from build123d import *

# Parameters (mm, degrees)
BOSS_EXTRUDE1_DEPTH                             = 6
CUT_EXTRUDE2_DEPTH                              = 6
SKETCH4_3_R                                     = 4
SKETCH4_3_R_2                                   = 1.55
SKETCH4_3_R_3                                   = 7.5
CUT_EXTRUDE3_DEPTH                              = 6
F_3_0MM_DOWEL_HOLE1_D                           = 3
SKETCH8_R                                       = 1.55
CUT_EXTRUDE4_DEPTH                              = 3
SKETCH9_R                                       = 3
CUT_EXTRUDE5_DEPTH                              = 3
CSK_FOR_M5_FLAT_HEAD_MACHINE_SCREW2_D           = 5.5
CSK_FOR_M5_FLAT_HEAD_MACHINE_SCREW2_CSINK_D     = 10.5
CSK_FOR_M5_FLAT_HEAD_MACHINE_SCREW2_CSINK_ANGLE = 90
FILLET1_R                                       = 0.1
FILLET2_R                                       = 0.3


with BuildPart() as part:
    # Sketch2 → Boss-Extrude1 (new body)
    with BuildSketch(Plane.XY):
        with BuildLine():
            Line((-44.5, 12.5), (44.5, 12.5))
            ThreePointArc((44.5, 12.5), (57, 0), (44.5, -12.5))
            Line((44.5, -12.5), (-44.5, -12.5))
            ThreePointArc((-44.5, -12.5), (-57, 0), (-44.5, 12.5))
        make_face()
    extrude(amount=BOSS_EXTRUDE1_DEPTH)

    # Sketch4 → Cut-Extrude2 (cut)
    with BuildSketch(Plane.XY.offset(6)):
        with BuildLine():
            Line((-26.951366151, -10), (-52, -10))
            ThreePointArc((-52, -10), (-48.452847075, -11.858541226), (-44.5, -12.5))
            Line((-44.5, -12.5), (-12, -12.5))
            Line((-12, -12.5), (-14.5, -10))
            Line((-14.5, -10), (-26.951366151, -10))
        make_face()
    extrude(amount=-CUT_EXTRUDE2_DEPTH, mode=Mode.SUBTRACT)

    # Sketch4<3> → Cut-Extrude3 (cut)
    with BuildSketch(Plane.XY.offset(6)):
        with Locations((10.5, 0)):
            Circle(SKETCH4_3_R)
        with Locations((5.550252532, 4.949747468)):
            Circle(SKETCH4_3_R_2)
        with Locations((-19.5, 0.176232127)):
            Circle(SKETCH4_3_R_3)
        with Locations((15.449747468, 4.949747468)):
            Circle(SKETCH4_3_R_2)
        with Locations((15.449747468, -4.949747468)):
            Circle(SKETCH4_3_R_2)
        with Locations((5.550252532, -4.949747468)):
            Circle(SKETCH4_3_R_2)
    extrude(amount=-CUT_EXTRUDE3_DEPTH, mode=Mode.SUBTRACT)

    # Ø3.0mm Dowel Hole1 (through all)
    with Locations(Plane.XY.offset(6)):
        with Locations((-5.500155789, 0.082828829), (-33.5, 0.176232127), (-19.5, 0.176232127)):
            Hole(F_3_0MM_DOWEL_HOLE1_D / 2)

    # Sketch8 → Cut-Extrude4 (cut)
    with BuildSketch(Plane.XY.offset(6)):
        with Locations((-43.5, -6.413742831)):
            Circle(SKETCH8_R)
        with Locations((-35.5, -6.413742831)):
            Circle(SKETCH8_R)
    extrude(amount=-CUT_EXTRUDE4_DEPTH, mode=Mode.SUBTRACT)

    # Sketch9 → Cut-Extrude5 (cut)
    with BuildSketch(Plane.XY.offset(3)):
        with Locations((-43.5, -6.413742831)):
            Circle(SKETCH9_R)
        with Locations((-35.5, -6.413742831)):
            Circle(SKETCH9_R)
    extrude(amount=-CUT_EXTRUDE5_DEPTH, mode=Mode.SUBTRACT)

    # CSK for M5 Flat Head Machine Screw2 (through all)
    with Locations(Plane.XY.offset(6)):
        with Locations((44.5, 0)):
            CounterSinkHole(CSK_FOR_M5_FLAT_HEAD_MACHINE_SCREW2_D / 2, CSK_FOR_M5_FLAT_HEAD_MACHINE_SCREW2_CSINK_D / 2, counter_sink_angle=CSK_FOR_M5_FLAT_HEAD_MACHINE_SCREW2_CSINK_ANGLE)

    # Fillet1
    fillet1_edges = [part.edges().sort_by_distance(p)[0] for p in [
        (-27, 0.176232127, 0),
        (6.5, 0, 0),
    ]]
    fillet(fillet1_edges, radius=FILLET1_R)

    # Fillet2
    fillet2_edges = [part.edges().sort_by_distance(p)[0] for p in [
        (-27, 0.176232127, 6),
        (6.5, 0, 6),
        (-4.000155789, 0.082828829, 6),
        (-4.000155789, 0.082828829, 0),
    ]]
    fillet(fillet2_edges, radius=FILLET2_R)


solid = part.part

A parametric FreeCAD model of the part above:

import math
import FreeCAD as App
import Part
import Sketcher

V = App.Vector
Q = App.Units.Quantity


def edges_at(feature, points):
    """Names of the edges that pass closest to the given points."""
    edges = feature.Shape.Edges
    near = lambda p: min(range(len(edges)), key=lambda i: edges[i].distToShape(Part.Vertex(*p))[0])
    return sorted({f"Edge{near(p) + 1}" for p in points})

doc = App.newDocument("Part")
body = doc.addObject("PartDesign::Body", "Body")

# Sketch on XY plane
sketch1 = body.newObject("Sketcher::SketchObject", "Sketch")
sketch1.AttachmentSupport = (doc.getObject("XY_Plane"), [""])
sketch1.MapMode = "FlatFace"
sketch1.addGeometry([
    Part.LineSegment(V(44.5, 12.5, 0), V(-44.5, 12.5, 0)),
    Part.ArcOfCircle(Part.Circle(V(-44.5, 0, 0), V(0, 0, 1), 12.5), math.radians(90), math.radians(270)),
    Part.LineSegment(V(-44.5, -12.5, 0), V(44.5, -12.5, 0)),
    Part.ArcOfCircle(Part.Circle(V(44.5, 0, 0), V(0, 0, 1), 12.5), math.radians(-90), math.radians(90)),
], False)
sketch1.addConstraint([
    Sketcher.Constraint("Tangent", 0, 2, 1, 1),
    Sketcher.Constraint("Tangent", 1, 2, 2, 1),
    Sketcher.Constraint("Tangent", 2, 2, 3, 1),
    Sketcher.Constraint("Tangent", 3, 2, 0, 1),
    Sketcher.Constraint("Horizontal", 0),
    Sketcher.Constraint("Horizontal", 2),
    Sketcher.Constraint("Symmetric", 1, 3, 3, 3, -1, 1),
    Sketcher.Constraint("Radius", 1, 12.5),
    Sketcher.Constraint("DistanceX", 0, 2, 0, 1, 89.0),
])
pad1 = body.newObject("PartDesign::Pad", "Pad")
pad1.Profile = sketch1
pad1.Length = 6

# Sketch on XY plane
sketch2 = body.newObject("Sketcher::SketchObject", "Sketch001")
sketch2.AttachmentSupport = (doc.getObject("XY_Plane"), [""])
sketch2.MapMode = "FlatFace"
sketch2.AttachmentOffset = App.Placement(V(0, 0, 6), App.Rotation())
sketch2.addGeometry([
    Part.ArcOfCircle(Part.Circle(V(-44.5, 0, 0), V(0, 0, 1), 12.5), math.radians(-126.869898), math.radians(-90)),
    Part.LineSegment(V(-44.5, -12.5, 0), V(-12, -12.5, 0)),
    Part.LineSegment(V(-12, -12.5, 0), V(-14.5, -10, 0)),
    Part.LineSegment(V(-14.5, -10, 0), V(-52, -10, 0)),
], False)
sketch2.addConstraint([
    Sketcher.Constraint("Tangent", 0, 2, 1, 1),
    Sketcher.Constraint("Coincident", 1, 2, 2, 1),
    Sketcher.Constraint("Coincident", 2, 2, 3, 1),
    Sketcher.Constraint("Coincident", 3, 2, 0, 1),
    Sketcher.Constraint("Horizontal", 1),
    Sketcher.Constraint("Horizontal", 3),
    Sketcher.Constraint("PointOnObject", 0, 3, -1),
    Sketcher.Constraint("Radius", 0, 12.5),
    Sketcher.Constraint("Angle", 2, Q("135 deg")),
    Sketcher.Constraint("DistanceX", 1, 1, 1, 2, 32.5),
    Sketcher.Constraint("DistanceX", 3, 2, 3, 1, 37.5),
    Sketcher.Constraint("DistanceX", 1, 2, -1, 1, 12.0),
])
pocket1 = body.newObject("PartDesign::Pocket", "Pocket")
pocket1.Profile = sketch2
pocket1.Length = 6

# Sketch on XY plane
sketch3 = body.newObject("Sketcher::SketchObject", "Sketch002")
sketch3.AttachmentSupport = (doc.getObject("XY_Plane"), [""])
sketch3.MapMode = "FlatFace"
sketch3.AttachmentOffset = App.Placement(V(0, 0, 6), App.Rotation())
sketch3.addGeometry([
    Part.Circle(V(10.5, 0, 0), V(0, 0, 1), 4),  # 0
    Part.Circle(V(5.550253, 4.949747, 0), V(0, 0, 1), 1.55),  # 1
    Part.Circle(V(-19.5, 0.176232, 0), V(0, 0, 1), 7.5),  # 2
    Part.Circle(V(15.449747, 4.949747, 0), V(0, 0, 1), 1.55),  # 3
    Part.Circle(V(15.449747, -4.949747, 0), V(0, 0, 1), 1.55),  # 4
    Part.Circle(V(5.550253, -4.949747, 0), V(0, 0, 1), 1.55),  # 5
], False)
sketch3.addConstraint([
    Sketcher.Constraint("Equal", 1, 3),
    Sketcher.Constraint("Equal", 3, 4),
    Sketcher.Constraint("Equal", 4, 5),
    Sketcher.Constraint("Symmetric", 3, 3, 4, 3, -1),
    Sketcher.Constraint("Symmetric", 1, 3, 5, 3, -1),
    Sketcher.Constraint("PointOnObject", 0, 3, -1),
    Sketcher.Constraint("Horizontal", 1, 3, 3, 3),
    Sketcher.Constraint("Diameter", 0, 8.0),
    Sketcher.Constraint("Diameter", 2, 15.0),
    Sketcher.Constraint("Diameter", 1, 3.1),
    Sketcher.Constraint("DistanceX", 2, 3, 0, 3, 30.0),
    Sketcher.Constraint("DistanceX", -1, 1, 0, 3, 10.5),
    Sketcher.Constraint("DistanceY", 4, 3, 2, 3, 5.12598),
    Sketcher.Constraint("DistanceX", -1, 1, 1, 3, 5.550253),
    Sketcher.Constraint("DistanceY", -1, 1, 1, 3, 4.949747),
    Sketcher.Constraint("DistanceX", -1, 1, 3, 3, 15.449747),
])
pocket2 = body.newObject("PartDesign::Pocket", "Pocket001")
pocket2.Profile = sketch3
pocket2.Length = 6

# Sketch on XY plane
sketch4 = body.newObject("Sketcher::SketchObject", "Sketch003")
sketch4.AttachmentSupport = (doc.getObject("XY_Plane"), [""])
sketch4.MapMode = "FlatFace"
sketch4.AttachmentOffset = App.Placement(V(0, 0, 6), App.Rotation())
sketch4.addGeometry([
    Part.Circle(V(-5.500156, 0.082829, 0), V(0, 0, 1), 1.5),
    Part.Circle(V(-33.5, 0.176232, 0), V(0, 0, 1), 1.5),
    Part.Circle(V(-19.5, 0.176232, 0), V(0, 0, 1), 1.5),
], False)
sketch4.addConstraint([
    Sketcher.Constraint("Equal", 0, 1),
    Sketcher.Constraint("Equal", 1, 2),
    Sketcher.Constraint("Horizontal", 1, 3, 2, 3),
    Sketcher.Constraint("Diameter", 0, 3.0),
    Sketcher.Constraint("DistanceX", 1, 3, 2, 3, 14.0),
    Sketcher.Constraint("DistanceX", 1, 3, -1, 1, 33.5),
    Sketcher.Constraint("DistanceY", -1, 1, 0, 3, 0.082829),
    Sketcher.Constraint("DistanceX", 0, 3, -1, 1, 5.500156),
    Sketcher.Constraint("DistanceY", -1, 1, 1, 3, 0.176232),
])
doc.recompute()
hole = body.newObject("PartDesign::Hole", "Hole")
hole.Profile = sketch4
hole.ThreadType = "None"
hole.Diameter = 3
hole.DepthType = "ThroughAll"

# Sketch on XY plane
sketch5 = body.newObject("Sketcher::SketchObject", "Sketch004")
sketch5.AttachmentSupport = (doc.getObject("XY_Plane"), [""])
sketch5.MapMode = "FlatFace"
sketch5.AttachmentOffset = App.Placement(V(0, 0, 6), App.Rotation())
sketch5.addGeometry([
    Part.Circle(V(-43.5, -6.413743, 0), V(0, 0, 1), 1.55),
    Part.Circle(V(-35.5, -6.413743, 0), V(0, 0, 1), 1.55),
], False)
sketch5.addConstraint([
    Sketcher.Constraint("Equal", 0, 1),
    Sketcher.Constraint("Horizontal", 0, 3, 1, 3),
    Sketcher.Constraint("Diameter", 0, 3.1),
    Sketcher.Constraint("DistanceX", 0, 3, 1, 3, 8.0),
    Sketcher.Constraint("DistanceX", 0, 3, -1, 1, 43.5),
    Sketcher.Constraint("DistanceY", 0, 3, -1, 1, 6.413743),
])
pocket3 = body.newObject("PartDesign::Pocket", "Pocket002")
pocket3.Profile = sketch5
pocket3.Length = 3

# Sketch on XY plane
sketch6 = body.newObject("Sketcher::SketchObject", "Sketch005")
sketch6.AttachmentSupport = (doc.getObject("XY_Plane"), [""])
sketch6.MapMode = "FlatFace"
sketch6.AttachmentOffset = App.Placement(V(0, 0, 3), App.Rotation())
sketch6.addGeometry([
    Part.Circle(V(-43.5, -6.413743, 0), V(0, 0, 1), 3),
    Part.Circle(V(-35.5, -6.413743, 0), V(0, 0, 1), 3),
], False)
sketch6.addConstraint([
    Sketcher.Constraint("Equal", 0, 1),
    Sketcher.Constraint("Horizontal", 0, 3, 1, 3),
    Sketcher.Constraint("Diameter", 0, 6.0),
    Sketcher.Constraint("DistanceX", 0, 3, 1, 3, 8.0),
    Sketcher.Constraint("DistanceX", 0, 3, -1, 1, 43.5),
    Sketcher.Constraint("DistanceY", 0, 3, -1, 1, 6.413743),
])
pocket4 = body.newObject("PartDesign::Pocket", "Pocket003")
pocket4.Profile = sketch6
pocket4.Length = 3

# Sketch on XY plane
sketch7 = body.newObject("Sketcher::SketchObject", "Sketch006")
sketch7.AttachmentSupport = (doc.getObject("XY_Plane"), [""])
sketch7.MapMode = "FlatFace"
sketch7.AttachmentOffset = App.Placement(V(0, 0, 6), App.Rotation())
sketch7.addGeometry(Part.Circle(V(44.5, 0, 0), V(0, 0, 1), 2.75), False)
sketch7.addConstraint([
    Sketcher.Constraint("PointOnObject", 0, 3, -1),
    Sketcher.Constraint("Diameter", 0, 5.5),
    Sketcher.Constraint("DistanceX", -1, 1, 0, 3, 44.5),
])
doc.recompute()
hole2 = body.newObject("PartDesign::Hole", "Hole001")
hole2.Profile = sketch7
hole2.ThreadType = "None"
hole2.Diameter = 5.5
hole2.DepthType = "ThroughAll"
hole2.HoleCutType = "Countersink"
hole2.HoleCutDiameter = 10.5
hole2.HoleCutCountersinkAngle = 90
doc.recompute()

fillet = body.newObject("PartDesign::Fillet", "Fillet")
fillet.Base = (hole2, edges_at(hole2, [(-27, 0.176, 0), (6.5, 0, 0)]))
fillet.Radius = 0.1
doc.recompute()

fillet2 = body.newObject("PartDesign::Fillet", "Fillet001")
fillet2.Base = (fillet, edges_at(fillet, [
    (-27, 0.176, 6),
    (6.5, 0, 6),
    (-4, 0.083, 6),
    (-4, 0.083, 0),
]))
fillet2.Radius = 0.3

doc.recompute()
